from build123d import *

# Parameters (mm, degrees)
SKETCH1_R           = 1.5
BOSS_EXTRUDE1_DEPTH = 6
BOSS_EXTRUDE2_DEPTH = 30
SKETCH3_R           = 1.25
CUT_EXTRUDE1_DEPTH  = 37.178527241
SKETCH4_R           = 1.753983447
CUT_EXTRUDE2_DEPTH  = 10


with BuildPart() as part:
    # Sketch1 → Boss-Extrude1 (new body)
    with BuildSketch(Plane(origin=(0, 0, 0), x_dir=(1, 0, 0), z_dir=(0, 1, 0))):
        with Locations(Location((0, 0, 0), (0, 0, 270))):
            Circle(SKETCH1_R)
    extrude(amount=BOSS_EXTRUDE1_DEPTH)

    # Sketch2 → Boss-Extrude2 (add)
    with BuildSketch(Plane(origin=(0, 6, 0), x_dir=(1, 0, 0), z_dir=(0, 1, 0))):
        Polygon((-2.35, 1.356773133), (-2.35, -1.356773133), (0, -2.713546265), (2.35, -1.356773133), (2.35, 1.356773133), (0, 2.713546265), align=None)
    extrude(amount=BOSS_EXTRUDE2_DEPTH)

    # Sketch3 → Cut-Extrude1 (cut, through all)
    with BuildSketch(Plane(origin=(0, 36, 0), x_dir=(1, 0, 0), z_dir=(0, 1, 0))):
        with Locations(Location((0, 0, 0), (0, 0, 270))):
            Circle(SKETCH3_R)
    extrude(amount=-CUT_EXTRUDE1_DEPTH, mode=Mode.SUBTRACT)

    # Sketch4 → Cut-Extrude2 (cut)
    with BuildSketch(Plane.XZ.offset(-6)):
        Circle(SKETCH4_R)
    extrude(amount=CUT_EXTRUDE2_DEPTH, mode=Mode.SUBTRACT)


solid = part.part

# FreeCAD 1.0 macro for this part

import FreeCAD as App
import Part
import Sketcher

V = App.Vector
Q = App.Units.Quantity


def add_polygon(sketch, points):
    """Adds a closed chain of lines whose ends are joined by coincident constraints."""
    first, n = sketch.GeometryCount, len(points)
    for a, b in zip(points, points[1:] + points[:1]):
        sketch.addGeometry(Part.LineSegment(App.Vector(*a, 0), App.Vector(*b, 0)), False)
    for i in range(n):
        sketch.addConstraint(Sketcher.Constraint("Coincident", first + i, 2, first + (i + 1) % n, 1))

doc = App.newDocument("Part")
body = doc.addObject("PartDesign::Body", "Body")

sketch1 = body.newObject("Sketcher::SketchObject", "Sketch")
sketch1.AttachmentSupport = (doc.getObject("XZ_Plane"), [""])
sketch1.MapMode = "FlatFace"
sketch1.addGeometry(Part.Circle(V(0, 0, 0), V(0, 0, 1), 1.5), False)
sketch1.addConstraint(Sketcher.Constraint("Coincident", 0, 3, -1, 1))
sketch1.addConstraint(Sketcher.Constraint("Diameter", 0, 3.0))
pad1 = body.newObject("PartDesign::Pad", "Pad")
pad1.Profile = sketch1
pad1.Length = 6
pad1.Reversed = True

sketch2 = body.newObject("Sketcher::SketchObject", "Sketch001")
sketch2.AttachmentSupport = (doc.getObject("XZ_Plane"), [""])
sketch2.MapMode = "FlatFace"
sketch2.AttachmentOffset = App.Placement(V(0, 0, -6), App.Rotation())
add_polygon(sketch2, [(-2.35, -1.356773), (-2.35, 1.356773), (0, 2.713546), (2.35, 1.356773), (2.35, -1.356773), (0, -2.713546)])
sketch2.addConstraint(Sketcher.Constraint("Vertical", 0))
sketch2.addConstraint(Sketcher.Constraint("Vertical", 3))
sketch2.addConstraint(Sketcher.Constraint("Symmetric", 0, 2, 3, 2, -1, 1))
sketch2.addConstraint(Sketcher.Constraint("Symmetric", 1, 2, 4, 2, -1, 1))
sketch2.addConstraint(Sketcher.Constraint("PointOnObject", 1, 2, -2))
sketch2.addConstraint(Sketcher.Constraint("Parallel", 2, 5))
sketch2.addConstraint(Sketcher.Constraint("Horizontal", 0, 2, 2, 2))
sketch2.addConstraint(Sketcher.Constraint("Angle", 1, Q("30 deg")))
sketch2.addConstraint(Sketcher.Constraint("DistanceX", 0, 2, 2, 2, 4.7))
sketch2.addConstraint(Sketcher.Constraint("DistanceY", 0, 1, 0, 2, 2.713546))
pad2 = body.newObject("PartDesign::Pad", "Pad001")
pad2.Profile = sketch2
pad2.Length = 30
pad2.Reversed = True

sketch3 = body.newObject("Sketcher::SketchObject", "Sketch002")
sketch3.AttachmentSupport = (doc.getObject("XZ_Plane"), [""])
sketch3.MapMode = "FlatFace"
sketch3.AttachmentOffset = App.Placement(V(0, 0, -36), App.Rotation())
sketch3.addGeometry(Part.Circle(V(0, 0, 0), V(0, 0, 1), 1.25), False)
sketch3.addConstraint(Sketcher.Constraint("Coincident", 0, 3, -1, 1))
sketch3.addConstraint(Sketcher.Constraint("Diameter", 0, 2.5))
pocket1 = body.newObject("PartDesign::Pocket", "Pocket")
pocket1.Profile = sketch3
pocket1.Type = "ThroughAll"
pocket1.Reversed = True

sketch4 = body.newObject("Sketcher::SketchObject", "Sketch003")
sketch4.AttachmentSupport = (doc.getObject("XZ_Plane"), [""])
sketch4.MapMode = "FlatFace"
sketch4.AttachmentOffset = App.Placement(V(0, 0, -6), App.Rotation())
sketch4.addGeometry(Part.Circle(V(0, 0, 0), V(0, 0, 1), 1.753983), False)
sketch4.addConstraint(Sketcher.Constraint("Coincident", 0, 3, -1, 1))
sketch4.addConstraint(Sketcher.Constraint("Diameter", 0, 3.507967))
pocket2 = body.newObject("PartDesign::Pocket", "Pocket001")
pocket2.Profile = sketch4
pocket2.Length = 10
pocket2.Reversed = True

doc.recompute()
